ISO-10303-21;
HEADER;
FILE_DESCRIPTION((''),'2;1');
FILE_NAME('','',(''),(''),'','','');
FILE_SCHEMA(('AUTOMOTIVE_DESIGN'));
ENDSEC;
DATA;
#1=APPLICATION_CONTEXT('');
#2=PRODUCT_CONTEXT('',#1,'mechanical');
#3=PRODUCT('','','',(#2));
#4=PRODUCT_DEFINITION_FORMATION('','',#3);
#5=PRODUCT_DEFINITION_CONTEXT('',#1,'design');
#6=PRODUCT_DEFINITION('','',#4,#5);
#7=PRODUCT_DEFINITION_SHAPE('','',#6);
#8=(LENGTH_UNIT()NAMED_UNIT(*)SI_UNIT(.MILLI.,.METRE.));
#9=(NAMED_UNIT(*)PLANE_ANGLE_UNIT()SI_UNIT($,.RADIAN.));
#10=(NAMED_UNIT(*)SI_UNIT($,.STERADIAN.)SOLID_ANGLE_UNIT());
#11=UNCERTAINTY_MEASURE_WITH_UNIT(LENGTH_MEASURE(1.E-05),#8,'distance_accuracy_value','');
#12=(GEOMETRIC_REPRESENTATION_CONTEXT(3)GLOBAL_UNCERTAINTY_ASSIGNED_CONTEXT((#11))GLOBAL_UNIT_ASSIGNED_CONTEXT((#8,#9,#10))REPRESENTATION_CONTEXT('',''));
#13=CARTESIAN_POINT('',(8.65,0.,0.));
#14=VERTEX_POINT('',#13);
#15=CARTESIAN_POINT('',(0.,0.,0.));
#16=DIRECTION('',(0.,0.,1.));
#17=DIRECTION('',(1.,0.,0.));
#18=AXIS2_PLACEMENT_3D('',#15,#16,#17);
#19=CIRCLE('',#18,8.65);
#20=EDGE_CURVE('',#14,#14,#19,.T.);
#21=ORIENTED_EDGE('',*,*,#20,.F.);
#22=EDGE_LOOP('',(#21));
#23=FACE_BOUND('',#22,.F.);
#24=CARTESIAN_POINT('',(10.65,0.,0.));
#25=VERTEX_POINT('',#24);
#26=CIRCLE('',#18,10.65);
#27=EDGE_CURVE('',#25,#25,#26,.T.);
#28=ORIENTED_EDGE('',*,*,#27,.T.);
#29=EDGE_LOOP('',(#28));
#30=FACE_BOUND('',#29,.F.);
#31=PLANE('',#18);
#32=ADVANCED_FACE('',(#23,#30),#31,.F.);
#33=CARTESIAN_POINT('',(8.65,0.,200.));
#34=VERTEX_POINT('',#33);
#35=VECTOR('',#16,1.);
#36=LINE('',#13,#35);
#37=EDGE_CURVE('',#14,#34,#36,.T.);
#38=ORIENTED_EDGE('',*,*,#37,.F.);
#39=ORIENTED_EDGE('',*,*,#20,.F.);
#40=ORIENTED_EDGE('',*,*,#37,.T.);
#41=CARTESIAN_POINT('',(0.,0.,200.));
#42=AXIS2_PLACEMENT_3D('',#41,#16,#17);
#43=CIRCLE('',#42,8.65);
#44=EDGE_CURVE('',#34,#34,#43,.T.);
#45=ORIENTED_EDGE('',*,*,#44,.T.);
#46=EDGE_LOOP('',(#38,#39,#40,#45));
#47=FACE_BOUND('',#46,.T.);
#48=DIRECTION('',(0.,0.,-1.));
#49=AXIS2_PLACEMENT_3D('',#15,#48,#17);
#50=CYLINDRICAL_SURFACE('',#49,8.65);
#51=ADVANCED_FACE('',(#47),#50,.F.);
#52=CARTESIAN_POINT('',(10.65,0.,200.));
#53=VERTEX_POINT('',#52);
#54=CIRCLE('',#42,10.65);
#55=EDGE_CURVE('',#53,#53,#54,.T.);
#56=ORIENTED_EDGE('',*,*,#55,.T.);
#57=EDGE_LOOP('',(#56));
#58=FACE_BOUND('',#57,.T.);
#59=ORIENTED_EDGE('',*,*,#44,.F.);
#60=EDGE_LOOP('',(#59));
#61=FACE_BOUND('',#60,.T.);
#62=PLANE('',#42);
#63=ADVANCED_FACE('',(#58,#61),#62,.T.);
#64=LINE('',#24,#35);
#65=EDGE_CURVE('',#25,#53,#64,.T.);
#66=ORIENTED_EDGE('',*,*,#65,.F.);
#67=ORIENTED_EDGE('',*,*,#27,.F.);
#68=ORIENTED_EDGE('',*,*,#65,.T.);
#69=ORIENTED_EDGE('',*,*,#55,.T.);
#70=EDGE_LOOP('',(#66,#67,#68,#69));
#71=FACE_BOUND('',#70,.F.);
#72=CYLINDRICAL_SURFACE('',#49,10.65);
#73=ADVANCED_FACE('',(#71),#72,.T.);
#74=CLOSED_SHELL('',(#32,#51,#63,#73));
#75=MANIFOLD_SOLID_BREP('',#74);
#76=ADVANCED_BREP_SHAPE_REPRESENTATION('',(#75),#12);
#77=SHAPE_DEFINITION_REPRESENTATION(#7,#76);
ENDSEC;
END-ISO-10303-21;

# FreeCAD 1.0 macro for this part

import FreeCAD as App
import Part
import Sketcher

doc = App.newDocument("Part")
body = doc.addObject("PartDesign::Body", "Body")

sketch1 = body.newObject("Sketcher::SketchObject", "Sketch")
sketch1.AttachmentSupport = (doc.getObject("XY_Plane"), [""])
sketch1.MapMode = "FlatFace"
sketch1.addGeometry(Part.Circle(App.Vector(0, 0, 0), App.Vector(0, 0, 1), 10.65), False)
sketch1.addGeometry(Part.Circle(App.Vector(0, 0, 0), App.Vector(0, 0, 1), 8.65), False)
sketch1.addConstraint(Sketcher.Constraint("Coincident", 0, 3, -1, 1))
sketch1.addConstraint(Sketcher.Constraint("Coincident", 1, 3, -1, 1))
sketch1.addConstraint(Sketcher.Constraint("Diameter", 0, 21.3))
sketch1.addConstraint(Sketcher.Constraint("Diameter", 1, 17.3))
pad1 = body.newObject("PartDesign::Pad", "Pad")
pad1.Profile = sketch1
pad1.Length = 200

doc.recompute()
